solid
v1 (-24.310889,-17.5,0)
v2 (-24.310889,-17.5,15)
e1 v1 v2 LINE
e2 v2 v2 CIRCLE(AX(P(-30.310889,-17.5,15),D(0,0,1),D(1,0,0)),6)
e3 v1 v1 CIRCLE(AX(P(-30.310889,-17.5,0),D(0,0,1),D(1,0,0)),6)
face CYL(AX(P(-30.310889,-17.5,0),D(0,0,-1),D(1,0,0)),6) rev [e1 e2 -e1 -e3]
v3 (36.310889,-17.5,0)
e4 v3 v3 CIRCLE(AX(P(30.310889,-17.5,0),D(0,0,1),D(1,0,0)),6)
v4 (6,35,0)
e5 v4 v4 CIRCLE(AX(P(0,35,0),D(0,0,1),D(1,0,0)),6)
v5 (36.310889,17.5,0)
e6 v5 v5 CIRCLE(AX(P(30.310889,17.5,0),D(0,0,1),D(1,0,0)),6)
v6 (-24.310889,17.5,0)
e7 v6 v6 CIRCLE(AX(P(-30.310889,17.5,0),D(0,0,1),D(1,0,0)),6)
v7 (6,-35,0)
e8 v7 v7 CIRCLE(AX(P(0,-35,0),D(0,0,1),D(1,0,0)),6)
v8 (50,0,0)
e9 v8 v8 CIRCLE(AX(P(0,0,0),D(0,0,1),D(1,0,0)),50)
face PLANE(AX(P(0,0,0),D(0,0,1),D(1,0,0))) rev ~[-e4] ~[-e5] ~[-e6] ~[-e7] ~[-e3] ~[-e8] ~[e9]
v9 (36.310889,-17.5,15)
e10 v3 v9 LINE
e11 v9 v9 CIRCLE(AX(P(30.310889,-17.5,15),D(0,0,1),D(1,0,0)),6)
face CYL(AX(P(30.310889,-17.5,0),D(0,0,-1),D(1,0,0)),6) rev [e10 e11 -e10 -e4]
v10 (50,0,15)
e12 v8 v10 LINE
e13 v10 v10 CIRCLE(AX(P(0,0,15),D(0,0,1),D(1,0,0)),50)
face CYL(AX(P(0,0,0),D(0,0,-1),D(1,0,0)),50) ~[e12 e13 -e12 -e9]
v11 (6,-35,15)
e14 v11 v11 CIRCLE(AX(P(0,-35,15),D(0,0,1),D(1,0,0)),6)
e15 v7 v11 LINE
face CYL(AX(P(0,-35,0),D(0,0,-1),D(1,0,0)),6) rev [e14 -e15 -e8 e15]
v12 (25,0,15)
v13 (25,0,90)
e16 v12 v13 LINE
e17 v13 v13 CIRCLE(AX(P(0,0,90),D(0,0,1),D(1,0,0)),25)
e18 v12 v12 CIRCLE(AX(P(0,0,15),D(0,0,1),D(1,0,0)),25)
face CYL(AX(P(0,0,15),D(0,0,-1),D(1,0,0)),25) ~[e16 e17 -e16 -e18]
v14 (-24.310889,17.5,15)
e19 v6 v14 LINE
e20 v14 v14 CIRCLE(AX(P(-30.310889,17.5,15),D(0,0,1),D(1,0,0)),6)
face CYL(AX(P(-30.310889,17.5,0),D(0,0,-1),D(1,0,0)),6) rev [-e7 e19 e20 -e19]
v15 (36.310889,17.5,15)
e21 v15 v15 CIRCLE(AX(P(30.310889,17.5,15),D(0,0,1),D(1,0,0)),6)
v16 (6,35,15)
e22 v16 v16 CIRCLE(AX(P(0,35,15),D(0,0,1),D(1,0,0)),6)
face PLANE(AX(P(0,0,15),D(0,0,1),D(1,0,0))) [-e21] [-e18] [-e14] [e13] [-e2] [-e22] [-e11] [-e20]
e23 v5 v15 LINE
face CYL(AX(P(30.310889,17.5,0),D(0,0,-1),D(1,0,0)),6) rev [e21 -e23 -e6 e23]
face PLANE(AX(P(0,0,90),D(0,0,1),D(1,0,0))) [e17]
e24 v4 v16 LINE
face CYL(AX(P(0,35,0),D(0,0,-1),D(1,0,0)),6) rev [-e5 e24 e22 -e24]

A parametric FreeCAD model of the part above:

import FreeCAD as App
import Part
import Sketcher

doc = App.newDocument("Part")
body = doc.addObject("PartDesign::Body", "Body")

# Sketch on XY plane
sketch1 = body.newObject("Sketcher::SketchObject", "Sketch")
sketch1.AttachmentSupport = (doc.getObject("XY_Plane"), [""])
sketch1.MapMode = "FlatFace"
sketch1.addGeometry([
    Part.Circle(App.Vector(0, 0, 0), App.Vector(0, 0, 1), 50),  # 0
    Part.Circle(App.Vector(-30, -18, 0), App.Vector(0, 0, 1), 6),  # 1
    Part.Circle(App.Vector(0, -35, 0), App.Vector(0, 0, 1), 6),  # 2
    Part.Circle(App.Vector(30, -18, 0), App.Vector(0, 0, 1), 6),  # 3
    Part.Circle(App.Vector(-30, 18, 0), App.Vector(0, 0, 1), 6),  # 4
    Part.Circle(App.Vector(30, 18, 0), App.Vector(0, 0, 1), 6),  # 5
    Part.Circle(App.Vector(0, 35, 0), App.Vector(0, 0, 1), 6),  # 6
], False)
sketch1.addConstraint([
    Sketcher.Constraint("Coincident", 0, 3, -1, 1),
    Sketcher.Constraint("Equal", 1, 2),
    Sketcher.Constraint("Equal", 2, 3),
    Sketcher.Constraint("Equal", 3, 4),
    Sketcher.Constraint("Equal", 4, 5),
    Sketcher.Constraint("Equal", 5, 6),
    Sketcher.Constraint("Symmetric", 3, 3, 4, 3, -1, 1),
    Sketcher.Constraint("Symmetric", 1, 3, 5, 3, -1, 1),
    Sketcher.Constraint("Symmetric", 2, 3, 6, 3, -1, 1),
    Sketcher.Constraint("Symmetric", 1, 3, 3, 3, -2),
    Sketcher.Constraint("PointOnObject", 2, 3, -2),
    Sketcher.Constraint("Diameter", 0, 100.0),
    Sketcher.Constraint("Diameter", 1, 12.0),
    Sketcher.Constraint("DistanceY", 2, 3, -1, 1, 35.0),
    Sketcher.Constraint("DistanceY", 1, 3, 4, 3, 35.0),
    Sketcher.Constraint("DistanceX", 1, 3, -1, 1, 30.310889),
])
pad1 = body.newObject("PartDesign::Pad", "Pad")
pad1.Profile = sketch1
pad1.Length = 15

# Sketch on XY plane
sketch2 = body.newObject("Sketcher::SketchObject", "Sketch001")
sketch2.AttachmentSupport = (doc.getObject("XY_Plane"), [""])
sketch2.MapMode = "FlatFace"
sketch2.AttachmentOffset = App.Placement(App.Vector(0, 0, 15), App.Rotation())
sketch2.addGeometry(Part.Circle(App.Vector(0, 0, 0), App.Vector(0, 0, 1), 25), False)
sketch2.addConstraint([
    Sketcher.Constraint("Coincident", 0, 3, -1, 1),
    Sketcher.Constraint("Diameter", 0, 50.0),
])
pad2 = body.newObject("PartDesign::Pad", "Pad001")
pad2.Profile = sketch2
pad2.Length = 75

doc.recompute()
